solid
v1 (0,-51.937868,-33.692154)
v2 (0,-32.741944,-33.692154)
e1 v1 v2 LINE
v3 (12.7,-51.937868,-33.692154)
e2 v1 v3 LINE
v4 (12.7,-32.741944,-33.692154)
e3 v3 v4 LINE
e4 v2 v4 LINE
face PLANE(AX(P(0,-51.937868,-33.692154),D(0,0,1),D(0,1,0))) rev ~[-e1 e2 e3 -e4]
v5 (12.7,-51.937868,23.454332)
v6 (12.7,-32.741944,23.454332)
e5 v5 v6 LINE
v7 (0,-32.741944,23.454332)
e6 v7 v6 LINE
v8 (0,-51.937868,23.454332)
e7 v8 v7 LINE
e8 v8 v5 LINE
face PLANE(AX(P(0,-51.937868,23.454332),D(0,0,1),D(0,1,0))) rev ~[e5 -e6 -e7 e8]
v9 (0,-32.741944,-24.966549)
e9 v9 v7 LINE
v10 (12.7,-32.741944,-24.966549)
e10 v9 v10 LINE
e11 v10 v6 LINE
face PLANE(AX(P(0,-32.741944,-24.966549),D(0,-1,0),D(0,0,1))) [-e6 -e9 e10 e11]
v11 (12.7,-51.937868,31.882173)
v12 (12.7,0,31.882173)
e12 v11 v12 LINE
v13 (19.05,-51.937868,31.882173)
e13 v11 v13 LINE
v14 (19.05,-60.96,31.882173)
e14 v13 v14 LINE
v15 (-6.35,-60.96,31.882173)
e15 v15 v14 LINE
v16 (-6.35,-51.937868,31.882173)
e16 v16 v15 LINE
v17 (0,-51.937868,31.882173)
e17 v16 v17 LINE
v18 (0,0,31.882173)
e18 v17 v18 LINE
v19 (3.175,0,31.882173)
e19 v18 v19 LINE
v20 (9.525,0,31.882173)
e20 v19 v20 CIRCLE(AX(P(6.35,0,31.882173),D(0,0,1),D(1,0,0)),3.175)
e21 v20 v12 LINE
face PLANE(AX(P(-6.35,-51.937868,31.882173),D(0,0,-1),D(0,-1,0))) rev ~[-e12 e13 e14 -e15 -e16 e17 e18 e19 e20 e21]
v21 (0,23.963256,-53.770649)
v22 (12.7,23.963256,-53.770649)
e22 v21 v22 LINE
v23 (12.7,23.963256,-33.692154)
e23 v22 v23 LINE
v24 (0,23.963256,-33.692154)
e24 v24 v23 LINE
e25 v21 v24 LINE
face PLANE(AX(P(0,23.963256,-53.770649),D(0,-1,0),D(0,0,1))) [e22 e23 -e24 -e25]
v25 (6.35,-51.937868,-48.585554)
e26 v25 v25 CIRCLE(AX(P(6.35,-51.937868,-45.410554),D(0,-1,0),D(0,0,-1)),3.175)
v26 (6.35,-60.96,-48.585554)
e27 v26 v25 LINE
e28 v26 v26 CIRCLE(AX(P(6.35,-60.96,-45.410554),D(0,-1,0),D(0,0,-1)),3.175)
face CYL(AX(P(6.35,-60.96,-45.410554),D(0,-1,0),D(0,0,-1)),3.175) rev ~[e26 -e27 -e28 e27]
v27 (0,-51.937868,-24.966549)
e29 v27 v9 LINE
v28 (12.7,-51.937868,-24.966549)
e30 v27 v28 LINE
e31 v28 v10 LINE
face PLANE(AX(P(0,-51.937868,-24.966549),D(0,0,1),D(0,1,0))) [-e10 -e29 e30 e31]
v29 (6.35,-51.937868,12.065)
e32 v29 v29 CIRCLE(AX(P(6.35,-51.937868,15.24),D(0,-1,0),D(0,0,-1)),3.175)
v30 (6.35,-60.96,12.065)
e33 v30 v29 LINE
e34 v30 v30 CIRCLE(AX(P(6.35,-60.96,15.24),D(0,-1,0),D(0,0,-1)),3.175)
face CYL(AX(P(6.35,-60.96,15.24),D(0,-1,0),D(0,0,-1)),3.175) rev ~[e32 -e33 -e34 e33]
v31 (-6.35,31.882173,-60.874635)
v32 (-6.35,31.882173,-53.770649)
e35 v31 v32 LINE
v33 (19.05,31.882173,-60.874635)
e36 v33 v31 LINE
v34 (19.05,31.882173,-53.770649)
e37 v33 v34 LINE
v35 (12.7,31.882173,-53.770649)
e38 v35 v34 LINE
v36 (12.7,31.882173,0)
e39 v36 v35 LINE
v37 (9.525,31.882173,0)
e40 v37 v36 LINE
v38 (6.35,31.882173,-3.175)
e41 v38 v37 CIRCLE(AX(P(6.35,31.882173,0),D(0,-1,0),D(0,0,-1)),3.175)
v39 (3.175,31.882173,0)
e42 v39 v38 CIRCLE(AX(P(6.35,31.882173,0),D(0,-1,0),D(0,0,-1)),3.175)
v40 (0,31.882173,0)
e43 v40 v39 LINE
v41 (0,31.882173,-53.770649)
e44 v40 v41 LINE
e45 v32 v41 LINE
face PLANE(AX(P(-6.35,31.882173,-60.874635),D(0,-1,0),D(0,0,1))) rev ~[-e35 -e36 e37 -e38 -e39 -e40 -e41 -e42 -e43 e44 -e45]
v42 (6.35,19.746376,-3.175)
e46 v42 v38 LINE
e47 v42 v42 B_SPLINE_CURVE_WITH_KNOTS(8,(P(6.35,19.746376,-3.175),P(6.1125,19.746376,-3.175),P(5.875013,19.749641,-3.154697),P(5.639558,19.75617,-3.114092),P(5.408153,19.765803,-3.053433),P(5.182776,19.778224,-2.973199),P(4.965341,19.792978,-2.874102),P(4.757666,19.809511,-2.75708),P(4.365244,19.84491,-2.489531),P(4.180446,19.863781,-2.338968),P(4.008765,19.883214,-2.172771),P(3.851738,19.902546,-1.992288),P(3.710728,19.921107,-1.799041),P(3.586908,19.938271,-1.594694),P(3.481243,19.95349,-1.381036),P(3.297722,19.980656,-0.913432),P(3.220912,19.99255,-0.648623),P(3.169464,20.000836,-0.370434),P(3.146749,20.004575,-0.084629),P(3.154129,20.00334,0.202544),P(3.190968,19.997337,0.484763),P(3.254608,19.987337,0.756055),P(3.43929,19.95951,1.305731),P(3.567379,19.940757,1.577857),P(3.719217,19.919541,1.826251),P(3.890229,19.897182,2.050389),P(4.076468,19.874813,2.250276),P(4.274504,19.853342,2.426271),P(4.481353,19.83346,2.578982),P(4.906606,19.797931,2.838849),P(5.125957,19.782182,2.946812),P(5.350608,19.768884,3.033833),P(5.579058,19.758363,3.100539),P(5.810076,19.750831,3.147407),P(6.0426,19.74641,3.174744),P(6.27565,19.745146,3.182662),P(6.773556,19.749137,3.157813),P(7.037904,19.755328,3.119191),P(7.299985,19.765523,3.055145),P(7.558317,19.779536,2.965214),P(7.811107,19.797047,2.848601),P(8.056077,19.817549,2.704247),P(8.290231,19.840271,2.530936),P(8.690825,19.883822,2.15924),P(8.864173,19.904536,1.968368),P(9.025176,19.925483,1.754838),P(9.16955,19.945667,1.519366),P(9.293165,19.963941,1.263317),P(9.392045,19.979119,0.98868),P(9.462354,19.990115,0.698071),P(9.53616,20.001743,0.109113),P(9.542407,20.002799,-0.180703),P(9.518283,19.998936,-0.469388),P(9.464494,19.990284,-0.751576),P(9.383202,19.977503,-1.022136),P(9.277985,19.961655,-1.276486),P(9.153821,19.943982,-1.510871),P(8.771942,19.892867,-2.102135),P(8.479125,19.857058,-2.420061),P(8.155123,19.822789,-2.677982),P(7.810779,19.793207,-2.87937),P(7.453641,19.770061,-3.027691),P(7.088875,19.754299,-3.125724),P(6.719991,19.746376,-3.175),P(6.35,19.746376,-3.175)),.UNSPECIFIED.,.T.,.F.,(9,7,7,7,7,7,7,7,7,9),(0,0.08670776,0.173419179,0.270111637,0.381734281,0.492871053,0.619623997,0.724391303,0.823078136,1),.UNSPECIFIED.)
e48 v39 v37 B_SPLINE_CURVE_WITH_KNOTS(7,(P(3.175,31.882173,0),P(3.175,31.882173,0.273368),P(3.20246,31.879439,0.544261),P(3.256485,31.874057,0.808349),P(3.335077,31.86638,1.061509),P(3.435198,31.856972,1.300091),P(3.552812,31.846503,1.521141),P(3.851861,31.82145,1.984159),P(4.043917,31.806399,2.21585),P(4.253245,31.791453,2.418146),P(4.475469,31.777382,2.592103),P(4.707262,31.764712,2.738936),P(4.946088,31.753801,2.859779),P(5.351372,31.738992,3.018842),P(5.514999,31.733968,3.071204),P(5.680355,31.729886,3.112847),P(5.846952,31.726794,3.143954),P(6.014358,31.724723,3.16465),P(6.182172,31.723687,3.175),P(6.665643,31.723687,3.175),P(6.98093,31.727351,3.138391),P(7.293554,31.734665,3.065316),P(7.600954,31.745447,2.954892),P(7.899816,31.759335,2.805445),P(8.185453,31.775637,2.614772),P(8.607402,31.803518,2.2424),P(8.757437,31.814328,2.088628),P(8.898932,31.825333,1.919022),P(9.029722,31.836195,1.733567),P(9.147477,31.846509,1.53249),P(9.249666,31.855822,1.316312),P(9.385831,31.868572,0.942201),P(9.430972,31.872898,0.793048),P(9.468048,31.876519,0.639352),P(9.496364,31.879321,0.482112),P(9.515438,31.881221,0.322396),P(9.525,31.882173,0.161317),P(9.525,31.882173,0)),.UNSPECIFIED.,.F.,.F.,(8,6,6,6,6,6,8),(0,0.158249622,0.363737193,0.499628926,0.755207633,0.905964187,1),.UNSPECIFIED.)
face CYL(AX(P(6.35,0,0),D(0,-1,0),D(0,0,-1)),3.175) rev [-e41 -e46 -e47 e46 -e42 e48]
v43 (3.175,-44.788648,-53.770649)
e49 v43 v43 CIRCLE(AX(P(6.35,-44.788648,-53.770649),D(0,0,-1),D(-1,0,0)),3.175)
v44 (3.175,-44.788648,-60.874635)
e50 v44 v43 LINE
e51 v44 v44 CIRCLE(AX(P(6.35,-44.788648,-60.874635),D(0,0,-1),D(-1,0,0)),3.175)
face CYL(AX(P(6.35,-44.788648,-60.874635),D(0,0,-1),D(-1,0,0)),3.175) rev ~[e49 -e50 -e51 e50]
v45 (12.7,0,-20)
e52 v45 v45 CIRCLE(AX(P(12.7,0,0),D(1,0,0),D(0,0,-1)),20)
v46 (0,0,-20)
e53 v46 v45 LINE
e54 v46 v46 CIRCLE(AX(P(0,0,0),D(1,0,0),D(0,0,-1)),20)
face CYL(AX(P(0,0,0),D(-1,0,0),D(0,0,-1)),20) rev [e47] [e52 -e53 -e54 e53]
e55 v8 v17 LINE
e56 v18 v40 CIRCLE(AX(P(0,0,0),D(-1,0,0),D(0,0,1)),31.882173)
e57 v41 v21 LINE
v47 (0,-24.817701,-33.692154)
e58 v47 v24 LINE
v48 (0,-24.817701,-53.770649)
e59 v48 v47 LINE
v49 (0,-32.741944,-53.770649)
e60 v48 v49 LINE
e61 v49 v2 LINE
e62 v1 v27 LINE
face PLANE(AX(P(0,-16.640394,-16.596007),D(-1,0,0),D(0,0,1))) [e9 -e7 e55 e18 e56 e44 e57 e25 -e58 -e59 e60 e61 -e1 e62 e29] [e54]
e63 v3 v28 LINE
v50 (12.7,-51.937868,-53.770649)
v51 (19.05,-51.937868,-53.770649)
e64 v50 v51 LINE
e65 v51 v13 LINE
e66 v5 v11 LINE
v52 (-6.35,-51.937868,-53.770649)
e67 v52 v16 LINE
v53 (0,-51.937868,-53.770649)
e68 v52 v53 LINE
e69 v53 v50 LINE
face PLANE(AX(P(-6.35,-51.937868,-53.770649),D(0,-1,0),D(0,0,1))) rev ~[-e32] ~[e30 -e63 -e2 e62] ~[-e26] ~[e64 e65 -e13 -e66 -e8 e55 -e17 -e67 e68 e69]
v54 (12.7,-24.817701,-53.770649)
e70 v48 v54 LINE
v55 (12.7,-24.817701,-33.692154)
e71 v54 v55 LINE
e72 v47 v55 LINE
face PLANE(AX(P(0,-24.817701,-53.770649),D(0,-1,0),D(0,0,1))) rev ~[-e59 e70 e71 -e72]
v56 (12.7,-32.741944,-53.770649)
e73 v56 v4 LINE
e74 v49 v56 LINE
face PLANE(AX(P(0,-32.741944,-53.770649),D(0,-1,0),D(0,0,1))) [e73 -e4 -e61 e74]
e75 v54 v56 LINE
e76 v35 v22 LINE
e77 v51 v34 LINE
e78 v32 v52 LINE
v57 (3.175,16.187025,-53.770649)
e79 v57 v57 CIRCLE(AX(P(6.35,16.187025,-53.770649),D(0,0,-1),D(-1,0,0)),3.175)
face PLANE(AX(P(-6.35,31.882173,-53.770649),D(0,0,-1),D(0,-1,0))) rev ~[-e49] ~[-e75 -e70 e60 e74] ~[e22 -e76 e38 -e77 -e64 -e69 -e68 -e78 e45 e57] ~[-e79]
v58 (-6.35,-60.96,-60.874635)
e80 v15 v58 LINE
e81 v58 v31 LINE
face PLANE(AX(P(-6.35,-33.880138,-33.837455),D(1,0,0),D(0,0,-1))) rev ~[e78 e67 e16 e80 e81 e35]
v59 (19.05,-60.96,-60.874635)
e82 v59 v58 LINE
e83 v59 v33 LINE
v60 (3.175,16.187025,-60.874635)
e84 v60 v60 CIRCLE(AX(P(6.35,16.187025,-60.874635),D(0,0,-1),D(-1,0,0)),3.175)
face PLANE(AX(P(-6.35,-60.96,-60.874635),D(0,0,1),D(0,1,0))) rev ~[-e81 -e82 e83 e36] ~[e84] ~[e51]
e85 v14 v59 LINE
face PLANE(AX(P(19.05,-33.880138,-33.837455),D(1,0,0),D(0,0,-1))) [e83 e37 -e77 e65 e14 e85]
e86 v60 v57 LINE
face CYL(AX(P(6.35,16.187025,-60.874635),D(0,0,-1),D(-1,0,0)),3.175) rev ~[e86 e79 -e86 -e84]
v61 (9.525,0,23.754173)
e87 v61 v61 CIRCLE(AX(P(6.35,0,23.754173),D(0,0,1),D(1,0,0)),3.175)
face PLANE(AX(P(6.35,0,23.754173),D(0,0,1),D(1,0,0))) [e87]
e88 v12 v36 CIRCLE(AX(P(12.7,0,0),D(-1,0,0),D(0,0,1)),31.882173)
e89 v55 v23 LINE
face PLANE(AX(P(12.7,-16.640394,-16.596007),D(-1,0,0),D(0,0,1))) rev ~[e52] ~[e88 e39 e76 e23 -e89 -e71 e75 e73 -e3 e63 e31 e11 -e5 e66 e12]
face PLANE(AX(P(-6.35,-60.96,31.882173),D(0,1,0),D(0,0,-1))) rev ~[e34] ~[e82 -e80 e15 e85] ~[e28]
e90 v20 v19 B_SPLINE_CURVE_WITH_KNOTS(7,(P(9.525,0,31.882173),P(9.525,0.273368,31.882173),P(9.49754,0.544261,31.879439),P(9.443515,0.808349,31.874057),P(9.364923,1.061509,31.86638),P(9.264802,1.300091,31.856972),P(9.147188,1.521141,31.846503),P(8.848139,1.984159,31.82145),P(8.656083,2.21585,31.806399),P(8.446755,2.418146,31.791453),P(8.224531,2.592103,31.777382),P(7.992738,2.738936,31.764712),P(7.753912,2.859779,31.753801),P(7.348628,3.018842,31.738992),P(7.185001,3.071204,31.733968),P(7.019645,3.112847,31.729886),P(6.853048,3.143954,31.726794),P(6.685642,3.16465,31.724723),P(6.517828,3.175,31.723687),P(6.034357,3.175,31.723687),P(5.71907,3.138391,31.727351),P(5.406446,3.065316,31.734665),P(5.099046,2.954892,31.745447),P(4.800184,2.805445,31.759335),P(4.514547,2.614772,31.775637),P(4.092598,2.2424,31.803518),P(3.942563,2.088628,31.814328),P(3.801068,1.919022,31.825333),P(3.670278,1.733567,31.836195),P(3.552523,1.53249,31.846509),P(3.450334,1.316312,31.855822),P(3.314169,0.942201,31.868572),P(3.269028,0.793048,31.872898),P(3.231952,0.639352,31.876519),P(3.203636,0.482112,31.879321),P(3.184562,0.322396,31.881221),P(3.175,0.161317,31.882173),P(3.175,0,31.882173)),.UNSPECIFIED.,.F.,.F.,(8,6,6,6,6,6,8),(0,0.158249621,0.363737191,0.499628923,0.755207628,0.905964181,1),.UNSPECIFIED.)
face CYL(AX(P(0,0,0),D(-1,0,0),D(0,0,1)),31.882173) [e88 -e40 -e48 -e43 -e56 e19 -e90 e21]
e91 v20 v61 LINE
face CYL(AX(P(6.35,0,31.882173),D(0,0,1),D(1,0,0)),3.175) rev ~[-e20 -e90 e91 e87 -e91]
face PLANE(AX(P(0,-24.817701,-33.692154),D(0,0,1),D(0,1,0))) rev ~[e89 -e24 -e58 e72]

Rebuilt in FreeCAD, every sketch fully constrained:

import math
import FreeCAD as App
import Part
import Sketcher
from FreeCAD import Vector
Q = App.Units.Quantity


def add_polygon(sketch, points):
    """Adds a closed chain of lines whose ends are joined by coincident constraints."""
    first, n = sketch.GeometryCount, len(points)
    for a, b in zip(points, points[1:] + points[:1]):
        sketch.addGeometry(Part.LineSegment(App.Vector(*a, 0), App.Vector(*b, 0)), False)
    for i in range(n):
        sketch.addConstraint(Sketcher.Constraint("Coincident", first + i, 2, first + (i + 1) % n, 1))

doc = App.newDocument("Part")
body = doc.addObject("PartDesign::Body", "Body")

# Sketch on YZ plane
sketch1 = body.newObject("Sketcher::SketchObject", "Sketch")
sketch1.AttachmentSupport = (doc.getObject("YZ_Plane"), [""])
sketch1.MapMode = "FlatFace"
sketch1.addGeometry(Part.LineSegment(Vector(31.882173, -60.874635, 0), Vector(31.882173, 0, 0)), False)
sketch1.addGeometry(Part.ArcOfCircle(Part.Circle(Vector(0, 0, 0), Vector(0, 0, 1), 31.882173), math.radians(0), math.radians(90)), False)
sketch1.addGeometry(Part.LineSegment(Vector(0, 31.882173, 0), Vector(-60.96, 31.882173, 0)), False)
sketch1.addGeometry(Part.LineSegment(Vector(-60.96, 31.882173, 0), Vector(-60.96, -60.874635, 0)), False)
sketch1.addGeometry(Part.LineSegment(Vector(-60.96, -60.874635, 0), Vector(31.882173, -60.874635, 0)), False)
sketch1.addGeometry(Part.Circle(Vector(0, 0, 0), Vector(0, 0, 1), 20), False)
sketch1.addConstraint(Sketcher.Constraint("Tangent", 0, 2, 1, 1))
sketch1.addConstraint(Sketcher.Constraint("Tangent", 1, 2, 2, 1))
sketch1.addConstraint(Sketcher.Constraint("Coincident", 2, 2, 3, 1))
sketch1.addConstraint(Sketcher.Constraint("Coincident", 3, 2, 4, 1))
sketch1.addConstraint(Sketcher.Constraint("Coincident", 4, 2, 0, 1))
sketch1.addConstraint(Sketcher.Constraint("Vertical", 0))
sketch1.addConstraint(Sketcher.Constraint("Horizontal", 2))
sketch1.addConstraint(Sketcher.Constraint("Vertical", 3))
sketch1.addConstraint(Sketcher.Constraint("Horizontal", 4))
sketch1.addConstraint(Sketcher.Constraint("Coincident", 1, 3, -1, 1))
sketch1.addConstraint(Sketcher.Constraint("Coincident", 5, 3, -1, 1))
sketch1.addConstraint(Sketcher.Constraint("DistanceX", 2, 2, 2, 1, Q("2.4 in")))
sketch1.addConstraint(Sketcher.Constraint("Diameter", 5, 40.0))
sketch1.addConstraint(Sketcher.Constraint("Radius", 1, 31.882173))
sketch1.addConstraint(Sketcher.Constraint("DistanceY", 0, 1, 0, 2, 60.874635))
pad1 = body.newObject("PartDesign::Pad", "Pad")
pad1.Profile = sketch1
pad1.Length = Q("0.5 in")

# Sketch on YZ plane
sketch2 = body.newObject("Sketcher::SketchObject", "Sketch001")
sketch2.AttachmentSupport = (doc.getObject("YZ_Plane"), [""])
sketch2.MapMode = "FlatFace"
sketch2.AttachmentOffset = App.Placement(Vector(0, 0, 0.5 * 25.4), App.Rotation())
add_polygon(sketch2, [(31.882173, -60.874635), (31.882173, -53.770649), (-51.937868, -53.770649), (-51.937868, 31.882173), (-60.96, 31.882173), (-60.96, -60.874635)])  # lines 0-5
sketch2.addConstraint(Sketcher.Constraint("Vertical", 0))
sketch2.addConstraint(Sketcher.Constraint("Horizontal", 1))
sketch2.addConstraint(Sketcher.Constraint("Vertical", 2))
sketch2.addConstraint(Sketcher.Constraint("Horizontal", 3))
sketch2.addConstraint(Sketcher.Constraint("Vertical", 4))
sketch2.addConstraint(Sketcher.Constraint("Horizontal", 5))
sketch2.addConstraint(Sketcher.Constraint("DistanceX", 3, 2, -1, 1, Q("2.4 in")))
sketch2.addConstraint(Sketcher.Constraint("DistanceX", 1, 2, 1, 1, 83.820041))
sketch2.addConstraint(Sketcher.Constraint("DistanceY", 2, 1, 2, 2, 85.652822))
sketch2.addConstraint(Sketcher.Constraint("DistanceX", 3, 2, 3, 1, 9.022132))
sketch2.addConstraint(Sketcher.Constraint("DistanceY", 0, 1, 0, 2, 7.103986))
sketch2.addConstraint(Sketcher.Constraint("DistanceY", 0, 2, -1, 1, 53.770649))
pad2 = body.newObject("PartDesign::Pad", "Pad001")
pad2.Profile = sketch2
pad2.Type = "TwoLengths"
pad2.Length = Q("0.25 in")
pad2.Length2 = Q("0.75 in")

# Sketch on XZ plane
sketch3 = body.newObject("Sketcher::SketchObject", "Sketch002")
sketch3.AttachmentSupport = (doc.getObject("XZ_Plane"), [""])
sketch3.MapMode = "FlatFace"
sketch3.addGeometry(Part.Circle(Vector(6.35, 0, 0), Vector(0, 0, 1), 3.175), False)
sketch3.addConstraint(Sketcher.Constraint("PointOnObject", 0, 3, -1))
sketch3.addConstraint(Sketcher.Constraint("Diameter", 0, Q("0.25 in")))
sketch3.addConstraint(Sketcher.Constraint("DistanceX", -1, 1, 0, 3, Q("0.25 in")))
pocket1 = body.newObject("PartDesign::Pocket", "Pocket")
pocket1.Profile = sketch3
pocket1.Type = "ThroughAll"

# Sketch on XY plane
sketch4 = body.newObject("Sketcher::SketchObject", "Sketch003")
sketch4.AttachmentSupport = (doc.getObject("XY_Plane"), [""])
sketch4.MapMode = "FlatFace"
sketch4.AttachmentOffset = App.Placement(Vector(0, 0, 31.882173), App.Rotation())
sketch4.addGeometry(Part.Circle(Vector(6.35, 0, 0), Vector(0, 0, 1), 3.175), False)
sketch4.addConstraint(Sketcher.Constraint("PointOnObject", 0, 3, -1))
sketch4.addConstraint(Sketcher.Constraint("Diameter", 0, Q("0.25 in")))
sketch4.addConstraint(Sketcher.Constraint("DistanceX", -1, 1, 0, 3, Q("0.25 in")))
pocket2 = body.newObject("PartDesign::Pocket", "Pocket001")
pocket2.Profile = sketch4
pocket2.Length = Q("0.32 in")

# Sketch on YZ plane
sketch5 = body.newObject("Sketcher::SketchObject", "Sketch004")
sketch5.AttachmentSupport = (doc.getObject("YZ_Plane"), [""])
sketch5.MapMode = "FlatFace"
add_polygon(sketch5, [(23.963256, -53.770649), (-24.817701, -53.770649), (-24.817701, -33.692154), (23.963256, -33.692154)])  # lines 0-3
add_polygon(sketch5, [(-32.741944, -24.966549), (-51.937868, -24.966549), (-51.937868, 23.454332), (-32.741944, 23.454332)])  # lines 4-7
add_polygon(sketch5, [(-32.741944, -53.770649), (-51.937868, -53.770649), (-51.937868, -33.692154), (-32.741944, -33.692154)])  # lines 8-11
sketch5.addConstraint(Sketcher.Constraint("Horizontal", 0))
sketch5.addConstraint(Sketcher.Constraint("Vertical", 1))
sketch5.addConstraint(Sketcher.Constraint("Horizontal", 2))
sketch5.addConstraint(Sketcher.Constraint("Vertical", 3))
sketch5.addConstraint(Sketcher.Constraint("Horizontal", 4))
sketch5.addConstraint(Sketcher.Constraint("Vertical", 5))
sketch5.addConstraint(Sketcher.Constraint("Horizontal", 6))
sketch5.addConstraint(Sketcher.Constraint("Vertical", 7))
sketch5.addConstraint(Sketcher.Constraint("Horizontal", 8))
sketch5.addConstraint(Sketcher.Constraint("Vertical", 9))
sketch5.addConstraint(Sketcher.Constraint("Horizontal", 10))
sketch5.addConstraint(Sketcher.Constraint("Vertical", 11))
sketch5.addConstraint(Sketcher.Constraint("Horizontal", 3, 2, 8, 2))
sketch5.addConstraint(Sketcher.Constraint("Horizontal", 2, 2, 9, 2))
sketch5.addConstraint(Sketcher.Constraint("Vertical", 5, 2, 8, 2))
sketch5.addConstraint(Sketcher.Constraint("Vertical", 7, 2, 10, 2))
sketch5.addConstraint(Sketcher.Constraint("DistanceY", 5, 1, 5, 2, 48.420881))
sketch5.addConstraint(Sketcher.Constraint("DistanceX", 0, 2, -1, 1, 24.817701))
sketch5.addConstraint(Sketcher.Constraint("DistanceY", 0, 2, 4, 2, 28.8041))
sketch5.addConstraint(Sketcher.Constraint("DistanceX", 6, 2, 2, 2, 56.7052))
sketch5.addConstraint(Sketcher.Constraint("DistanceX", 0, 2, 0, 1, 48.780957))
sketch5.addConstraint(Sketcher.Constraint("DistanceX", 4, 2, 4, 1, 19.195924))
sketch5.addConstraint(Sketcher.Constraint("DistanceY", 1, 1, 1, 2, 20.078495))
sketch5.addConstraint(Sketcher.Constraint("DistanceY", 0, 2, -1, 1, 53.770649))
pocket3 = body.newObject("PartDesign::Pocket", "Pocket002")
pocket3.Profile = sketch5
pocket3.Length = Q("1.03 in")
pocket3.Reversed = True

# Sketch on XY plane
sketch6 = body.newObject("Sketcher::SketchObject", "Sketch005")
sketch6.AttachmentSupport = (doc.getObject("XY_Plane"), [""])
sketch6.MapMode = "FlatFace"
sketch6.AttachmentOffset = App.Placement(Vector(0, 0, -60.874635), App.Rotation())
sketch6.addGeometry(Part.Circle(Vector(6.35, 16.187025, 0), Vector(0, 0, 1), 3.175), False)
sketch6.addGeometry(Part.Circle(Vector(6.35, -44.788648, 0), Vector(0, 0, 1), 3.175), False)
sketch6.addConstraint(Sketcher.Constraint("Equal", 0, 1))
sketch6.addConstraint(Sketcher.Constraint("Vertical", 0, 3, 1, 3))
sketch6.addConstraint(Sketcher.Constraint("Diameter", 0, Q("0.25 in")))
sketch6.addConstraint(Sketcher.Constraint("DistanceX", -1, 1, 0, 3, Q("0.25 in")))
sketch6.addConstraint(Sketcher.Constraint("DistanceY", 1, 3, -1, 1, 44.788648))
sketch6.addConstraint(Sketcher.Constraint("DistanceY", -1, 1, 0, 3, 16.187025))
pocket4 = body.newObject("PartDesign::Pocket", "Pocket003")
pocket4.Profile = sketch6
pocket4.Length = Q("0.45 in")
pocket4.Reversed = True

# Sketch on XZ plane
sketch7 = body.newObject("Sketcher::SketchObject", "Sketch006")
sketch7.AttachmentSupport = (doc.getObject("XZ_Plane"), [""])
sketch7.MapMode = "FlatFace"
sketch7.AttachmentOffset = App.Placement(Vector(0, 0, 2.4 * 25.4), App.Rotation())
sketch7.addGeometry(Part.Circle(Vector(6.35, 15.24, 0), Vector(0, 0, 1), 3.175), False)
sketch7.addGeometry(Part.Circle(Vector(6.35, -45.410554, 0), Vector(0, 0, 1), 3.175), False)
sketch7.addConstraint(Sketcher.Constraint("Equal", 0, 1))
sketch7.addConstraint(Sketcher.Constraint("Vertical", 0, 3, 1, 3))
sketch7.addConstraint(Sketcher.Constraint("Diameter", 0, Q("0.25 in")))
sketch7.addConstraint(Sketcher.Constraint("DistanceY", -1, 1, 0, 3, Q("0.6 in")))
sketch7.addConstraint(Sketcher.Constraint("DistanceX", -1, 1, 0, 3, Q("0.25 in")))
sketch7.addConstraint(Sketcher.Constraint("DistanceY", 1, 3, -1, 1, 45.410554))
pocket5 = body.newObject("PartDesign::Pocket", "Pocket004")
pocket5.Profile = sketch7
pocket5.Length = Q("0.45 in")

doc.recompute()
